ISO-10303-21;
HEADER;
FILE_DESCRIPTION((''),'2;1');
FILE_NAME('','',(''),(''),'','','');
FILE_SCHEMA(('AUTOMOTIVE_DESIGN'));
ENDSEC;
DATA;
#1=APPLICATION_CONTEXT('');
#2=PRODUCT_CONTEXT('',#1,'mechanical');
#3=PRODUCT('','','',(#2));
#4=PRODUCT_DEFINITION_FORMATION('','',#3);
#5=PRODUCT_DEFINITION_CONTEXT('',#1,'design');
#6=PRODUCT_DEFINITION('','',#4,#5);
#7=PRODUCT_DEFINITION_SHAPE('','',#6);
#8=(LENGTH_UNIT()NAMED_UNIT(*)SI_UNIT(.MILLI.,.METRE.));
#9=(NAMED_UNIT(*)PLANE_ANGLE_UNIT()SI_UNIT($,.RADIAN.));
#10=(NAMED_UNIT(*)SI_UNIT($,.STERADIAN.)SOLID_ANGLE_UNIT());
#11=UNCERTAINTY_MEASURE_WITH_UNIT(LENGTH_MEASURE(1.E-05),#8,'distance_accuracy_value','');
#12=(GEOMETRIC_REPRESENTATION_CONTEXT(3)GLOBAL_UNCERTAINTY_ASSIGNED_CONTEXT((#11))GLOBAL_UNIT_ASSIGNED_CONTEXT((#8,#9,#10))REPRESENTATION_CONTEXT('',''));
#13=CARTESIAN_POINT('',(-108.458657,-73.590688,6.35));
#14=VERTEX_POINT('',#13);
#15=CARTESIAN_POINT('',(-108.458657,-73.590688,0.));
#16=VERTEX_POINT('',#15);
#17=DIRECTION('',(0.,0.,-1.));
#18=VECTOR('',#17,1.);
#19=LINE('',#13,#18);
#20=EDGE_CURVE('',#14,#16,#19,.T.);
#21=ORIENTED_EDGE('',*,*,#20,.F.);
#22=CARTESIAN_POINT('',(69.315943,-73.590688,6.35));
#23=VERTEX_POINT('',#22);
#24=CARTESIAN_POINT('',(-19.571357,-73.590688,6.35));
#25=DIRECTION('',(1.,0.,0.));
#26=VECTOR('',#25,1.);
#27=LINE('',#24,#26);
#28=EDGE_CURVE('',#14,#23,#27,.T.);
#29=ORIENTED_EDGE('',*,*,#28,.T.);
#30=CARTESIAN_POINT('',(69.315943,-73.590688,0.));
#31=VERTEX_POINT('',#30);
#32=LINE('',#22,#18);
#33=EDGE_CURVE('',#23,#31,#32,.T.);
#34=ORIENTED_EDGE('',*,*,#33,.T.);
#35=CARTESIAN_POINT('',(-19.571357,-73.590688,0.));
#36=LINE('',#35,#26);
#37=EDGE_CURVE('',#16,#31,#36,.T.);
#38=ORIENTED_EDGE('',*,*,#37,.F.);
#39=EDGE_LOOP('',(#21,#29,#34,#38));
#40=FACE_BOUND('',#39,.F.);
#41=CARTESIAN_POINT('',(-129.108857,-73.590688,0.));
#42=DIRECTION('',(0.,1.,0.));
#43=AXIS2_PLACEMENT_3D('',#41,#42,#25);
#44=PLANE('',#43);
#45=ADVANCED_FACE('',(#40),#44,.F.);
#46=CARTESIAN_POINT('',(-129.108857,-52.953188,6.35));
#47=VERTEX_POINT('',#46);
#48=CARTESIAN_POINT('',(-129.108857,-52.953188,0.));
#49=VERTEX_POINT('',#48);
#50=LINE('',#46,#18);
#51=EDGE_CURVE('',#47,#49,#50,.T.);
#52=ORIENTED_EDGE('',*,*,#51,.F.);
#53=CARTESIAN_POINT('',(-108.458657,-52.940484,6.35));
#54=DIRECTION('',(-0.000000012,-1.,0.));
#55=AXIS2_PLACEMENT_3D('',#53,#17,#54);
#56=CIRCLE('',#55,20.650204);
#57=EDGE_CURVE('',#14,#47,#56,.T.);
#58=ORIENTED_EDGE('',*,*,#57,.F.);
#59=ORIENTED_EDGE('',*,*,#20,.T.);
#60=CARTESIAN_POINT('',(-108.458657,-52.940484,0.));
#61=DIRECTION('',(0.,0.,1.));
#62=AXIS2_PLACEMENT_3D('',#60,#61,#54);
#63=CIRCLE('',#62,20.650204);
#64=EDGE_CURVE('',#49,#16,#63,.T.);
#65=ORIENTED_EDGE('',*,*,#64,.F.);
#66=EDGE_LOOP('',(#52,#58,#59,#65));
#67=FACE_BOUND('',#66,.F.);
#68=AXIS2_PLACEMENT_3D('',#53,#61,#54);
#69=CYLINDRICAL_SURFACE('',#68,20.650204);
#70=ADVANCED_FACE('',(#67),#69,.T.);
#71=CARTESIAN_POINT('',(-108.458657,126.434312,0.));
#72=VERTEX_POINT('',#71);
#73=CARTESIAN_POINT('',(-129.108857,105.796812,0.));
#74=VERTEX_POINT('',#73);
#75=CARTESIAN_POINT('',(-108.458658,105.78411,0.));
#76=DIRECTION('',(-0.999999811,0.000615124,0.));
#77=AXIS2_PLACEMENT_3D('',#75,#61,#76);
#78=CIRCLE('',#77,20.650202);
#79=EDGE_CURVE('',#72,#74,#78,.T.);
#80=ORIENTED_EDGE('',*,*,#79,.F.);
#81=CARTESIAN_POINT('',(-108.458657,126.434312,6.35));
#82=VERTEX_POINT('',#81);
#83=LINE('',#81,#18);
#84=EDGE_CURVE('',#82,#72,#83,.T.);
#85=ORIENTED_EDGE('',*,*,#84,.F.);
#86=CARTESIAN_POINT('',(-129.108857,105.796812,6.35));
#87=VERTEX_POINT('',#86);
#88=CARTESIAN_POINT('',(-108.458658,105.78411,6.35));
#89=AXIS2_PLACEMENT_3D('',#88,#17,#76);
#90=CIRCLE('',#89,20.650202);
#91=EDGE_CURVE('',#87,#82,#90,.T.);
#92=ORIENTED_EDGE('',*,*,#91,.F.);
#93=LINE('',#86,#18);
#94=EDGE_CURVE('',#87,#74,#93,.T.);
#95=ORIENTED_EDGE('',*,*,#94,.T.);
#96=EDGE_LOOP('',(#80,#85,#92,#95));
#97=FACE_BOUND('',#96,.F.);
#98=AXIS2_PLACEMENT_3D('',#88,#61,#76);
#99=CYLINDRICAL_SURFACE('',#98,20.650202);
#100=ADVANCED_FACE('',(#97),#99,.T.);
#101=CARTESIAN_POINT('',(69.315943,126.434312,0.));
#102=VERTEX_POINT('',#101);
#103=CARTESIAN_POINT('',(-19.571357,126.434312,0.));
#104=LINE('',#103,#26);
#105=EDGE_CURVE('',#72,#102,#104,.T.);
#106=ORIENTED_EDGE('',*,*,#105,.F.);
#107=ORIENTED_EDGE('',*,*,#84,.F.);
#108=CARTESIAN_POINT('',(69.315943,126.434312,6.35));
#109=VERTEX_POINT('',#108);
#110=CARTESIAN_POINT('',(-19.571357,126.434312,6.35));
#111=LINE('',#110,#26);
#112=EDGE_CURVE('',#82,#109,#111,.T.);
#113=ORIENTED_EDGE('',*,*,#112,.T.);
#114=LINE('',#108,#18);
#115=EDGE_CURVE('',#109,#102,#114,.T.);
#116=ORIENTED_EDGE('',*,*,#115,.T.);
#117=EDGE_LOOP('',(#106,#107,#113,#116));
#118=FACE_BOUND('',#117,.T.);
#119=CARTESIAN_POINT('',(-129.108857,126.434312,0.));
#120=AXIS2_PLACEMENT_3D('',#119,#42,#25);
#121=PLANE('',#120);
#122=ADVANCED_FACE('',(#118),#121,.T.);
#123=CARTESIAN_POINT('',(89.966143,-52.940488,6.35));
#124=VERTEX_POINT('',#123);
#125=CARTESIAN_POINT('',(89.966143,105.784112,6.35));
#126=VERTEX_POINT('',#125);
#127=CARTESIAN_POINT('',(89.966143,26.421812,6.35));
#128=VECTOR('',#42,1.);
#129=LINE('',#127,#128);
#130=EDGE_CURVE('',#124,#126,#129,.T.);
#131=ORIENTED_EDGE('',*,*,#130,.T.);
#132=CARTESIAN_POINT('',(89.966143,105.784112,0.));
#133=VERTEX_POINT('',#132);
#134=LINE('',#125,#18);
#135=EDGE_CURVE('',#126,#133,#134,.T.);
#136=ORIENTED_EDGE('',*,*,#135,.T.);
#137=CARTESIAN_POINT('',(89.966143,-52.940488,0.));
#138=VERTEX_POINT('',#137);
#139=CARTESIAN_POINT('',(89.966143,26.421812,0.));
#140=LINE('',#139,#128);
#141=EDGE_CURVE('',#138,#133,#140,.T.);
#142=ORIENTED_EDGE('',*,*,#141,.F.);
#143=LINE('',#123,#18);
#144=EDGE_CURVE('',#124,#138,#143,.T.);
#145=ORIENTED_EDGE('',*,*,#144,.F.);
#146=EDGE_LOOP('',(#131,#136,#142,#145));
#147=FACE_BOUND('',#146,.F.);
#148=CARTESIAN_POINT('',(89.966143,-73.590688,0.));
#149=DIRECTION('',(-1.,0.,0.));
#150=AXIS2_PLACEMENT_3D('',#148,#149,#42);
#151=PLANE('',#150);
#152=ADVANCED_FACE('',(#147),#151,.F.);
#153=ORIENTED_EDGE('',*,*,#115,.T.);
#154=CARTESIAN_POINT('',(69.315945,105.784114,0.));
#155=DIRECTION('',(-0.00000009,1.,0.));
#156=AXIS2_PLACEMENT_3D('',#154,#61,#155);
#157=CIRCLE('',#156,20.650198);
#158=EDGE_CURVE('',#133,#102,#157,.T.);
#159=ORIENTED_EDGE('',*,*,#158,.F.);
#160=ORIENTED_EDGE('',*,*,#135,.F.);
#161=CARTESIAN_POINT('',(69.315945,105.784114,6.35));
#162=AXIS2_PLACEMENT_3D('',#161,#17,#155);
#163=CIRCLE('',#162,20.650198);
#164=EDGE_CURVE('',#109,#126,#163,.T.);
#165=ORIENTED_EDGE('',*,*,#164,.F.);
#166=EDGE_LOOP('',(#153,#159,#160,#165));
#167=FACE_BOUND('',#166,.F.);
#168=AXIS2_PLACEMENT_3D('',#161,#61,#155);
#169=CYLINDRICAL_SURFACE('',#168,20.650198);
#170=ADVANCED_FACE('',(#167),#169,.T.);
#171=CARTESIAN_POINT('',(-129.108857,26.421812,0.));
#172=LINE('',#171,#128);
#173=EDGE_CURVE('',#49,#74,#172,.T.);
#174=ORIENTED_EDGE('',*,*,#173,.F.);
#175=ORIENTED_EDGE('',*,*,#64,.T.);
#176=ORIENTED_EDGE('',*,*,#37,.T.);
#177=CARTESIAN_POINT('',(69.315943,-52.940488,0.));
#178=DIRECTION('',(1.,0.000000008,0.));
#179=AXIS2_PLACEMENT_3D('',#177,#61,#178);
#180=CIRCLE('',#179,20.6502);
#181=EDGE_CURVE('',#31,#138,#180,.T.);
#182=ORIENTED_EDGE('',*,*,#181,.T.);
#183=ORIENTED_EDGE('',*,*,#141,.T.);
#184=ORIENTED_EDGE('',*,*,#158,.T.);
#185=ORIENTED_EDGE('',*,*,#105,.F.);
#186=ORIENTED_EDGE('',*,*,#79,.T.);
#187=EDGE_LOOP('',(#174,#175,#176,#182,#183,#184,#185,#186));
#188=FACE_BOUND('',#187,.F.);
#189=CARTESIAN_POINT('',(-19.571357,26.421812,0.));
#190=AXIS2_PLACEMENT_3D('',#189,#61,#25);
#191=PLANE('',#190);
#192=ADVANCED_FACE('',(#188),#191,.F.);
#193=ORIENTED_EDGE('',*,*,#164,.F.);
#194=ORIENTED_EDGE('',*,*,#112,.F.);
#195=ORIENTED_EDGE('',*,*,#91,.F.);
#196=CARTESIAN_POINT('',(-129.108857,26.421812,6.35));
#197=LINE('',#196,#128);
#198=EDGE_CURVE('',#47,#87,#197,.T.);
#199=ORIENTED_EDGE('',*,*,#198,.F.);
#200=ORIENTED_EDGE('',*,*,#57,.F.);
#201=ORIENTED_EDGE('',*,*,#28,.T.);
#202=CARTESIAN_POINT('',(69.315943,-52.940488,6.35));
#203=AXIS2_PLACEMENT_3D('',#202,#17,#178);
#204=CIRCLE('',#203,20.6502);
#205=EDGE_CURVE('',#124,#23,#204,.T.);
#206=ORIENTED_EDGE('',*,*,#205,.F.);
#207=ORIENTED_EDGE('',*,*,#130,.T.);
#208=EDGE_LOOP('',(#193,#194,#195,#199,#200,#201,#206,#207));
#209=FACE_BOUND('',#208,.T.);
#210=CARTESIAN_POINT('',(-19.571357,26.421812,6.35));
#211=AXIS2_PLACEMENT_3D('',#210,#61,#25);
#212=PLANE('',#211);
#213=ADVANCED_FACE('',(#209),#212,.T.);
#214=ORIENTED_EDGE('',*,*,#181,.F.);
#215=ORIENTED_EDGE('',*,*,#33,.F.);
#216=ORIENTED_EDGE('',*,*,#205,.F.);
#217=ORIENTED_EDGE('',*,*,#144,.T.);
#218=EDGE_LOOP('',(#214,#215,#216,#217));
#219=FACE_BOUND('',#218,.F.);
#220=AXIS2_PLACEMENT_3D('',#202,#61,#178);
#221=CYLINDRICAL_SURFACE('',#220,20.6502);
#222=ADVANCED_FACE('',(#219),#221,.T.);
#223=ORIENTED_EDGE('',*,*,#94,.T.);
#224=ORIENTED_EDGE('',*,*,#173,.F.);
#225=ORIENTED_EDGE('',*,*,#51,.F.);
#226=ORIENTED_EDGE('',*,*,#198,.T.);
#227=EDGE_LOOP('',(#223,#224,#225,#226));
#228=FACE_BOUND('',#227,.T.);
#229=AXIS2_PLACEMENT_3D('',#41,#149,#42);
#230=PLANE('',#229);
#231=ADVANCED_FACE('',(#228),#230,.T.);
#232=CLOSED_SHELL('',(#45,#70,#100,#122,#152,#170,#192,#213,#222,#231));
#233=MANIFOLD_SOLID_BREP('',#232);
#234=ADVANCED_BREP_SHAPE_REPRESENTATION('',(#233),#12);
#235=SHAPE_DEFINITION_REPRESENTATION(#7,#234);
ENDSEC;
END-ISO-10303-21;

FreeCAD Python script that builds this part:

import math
import FreeCAD as App
import Part
import Sketcher

V = App.Vector
Q = App.Units.Quantity

doc = App.newDocument("Part")
params = doc.addObject("Spreadsheet::Sheet", "Params")
for row, (alias, value) in enumerate([
    ("sketch1_width", "8.625 in"),
    ("sketch1_height", "7.875 in"),
    ("pad1_length", "0.25 in"),
    ("sketch2_radius", "0.8129999 in"),
    ("sketch2_height", "0.8125 in"),
], start=1):
    params.set(f"A{row}", alias)
    params.set(f"B{row}", "=" + value)
    params.setAlias(f"B{row}", alias)

body = doc.addObject("PartDesign::Body", "Body")

sketch1 = body.newObject("Sketcher::SketchObject", "Sketch")
sketch1.AttachmentSupport = (doc.getObject("XY_Plane"), [""])
sketch1.MapMode = "FlatFace"
sketch1.addGeometry(Part.LineSegment(V(-129.108857, 126.434312, 0), V(-129.108857, -73.590688, 0)), False)
sketch1.addGeometry(Part.LineSegment(V(-129.108857, -73.590688, 0), V(89.966143, -73.590688, 0)), False)
sketch1.addGeometry(Part.LineSegment(V(89.966143, -73.590688, 0), V(89.966143, 126.434312, 0)), False)
sketch1.addGeometry(Part.LineSegment(V(89.966143, 126.434312, 0), V(-129.108857, 126.434312, 0)), False)
sketch1.addConstraint(Sketcher.Constraint("Coincident", 0, 2, 1, 1))
sketch1.addConstraint(Sketcher.Constraint("Coincident", 1, 2, 2, 1))
sketch1.addConstraint(Sketcher.Constraint("Coincident", 2, 2, 3, 1))
sketch1.addConstraint(Sketcher.Constraint("Coincident", 3, 2, 0, 1))
sketch1.addConstraint(Sketcher.Constraint("Vertical", 0))
sketch1.addConstraint(Sketcher.Constraint("Horizontal", 1))
sketch1.addConstraint(Sketcher.Constraint("Vertical", 2))
sketch1.addConstraint(Sketcher.Constraint("Horizontal", 3))
sketch1.addConstraint(Sketcher.Constraint("DistanceX", 1, 1, 1, 2, Q("8.625 in")))
sketch1.addConstraint(Sketcher.Constraint("DistanceY", 0, 2, 0, 1, Q("7.875 in")))
sketch1.addConstraint(Sketcher.Constraint("DistanceY", 0, 2, -1, 1, 73.590688))
sketch1.addConstraint(Sketcher.Constraint("DistanceX", 0, 2, -1, 1, 129.108857))
sketch1.setExpression("Constraints[8]", "Params.sketch1_width")
sketch1.setExpression("Constraints[9]", "Params.sketch1_height")
pad1 = body.newObject("PartDesign::Pad", "Pad")
pad1.Profile = sketch1
pad1.setExpression("Length", "Params.pad1_length")

sketch2 = body.newObject("Sketcher::SketchObject", "Sketch001")
sketch2.AttachmentSupport = (doc.getObject("XY_Plane"), [""])
sketch2.MapMode = "FlatFace"
sketch2.AttachmentOffset = App.Placement(V(0, 0, 0.25 * 25.4), App.Rotation())
sketch2.addGeometry(Part.LineSegment(V(89.966143, 126.434312, 0), V(69.315943, 126.434312, 0)), False)
sketch2.addGeometry(Part.ArcOfCircle(Part.Circle(V(69.315945, 105.784114, 0), V(0, 0, 1), 20.650198), math.radians(-0.000005), math.radians(90.000005)), False)
sketch2.addGeometry(Part.LineSegment(V(89.966143, 105.784112, 0), V(89.966143, 126.434312, 0)), False)
sketch2.addGeometry(Part.LineSegment(V(-129.108857, 126.434312, 0), V(-129.108857, 105.796812, 0)), False)
sketch2.addGeometry(Part.ArcOfCircle(Part.Circle(V(-108.458658, 105.78411, 0), V(0, 0, 1), 20.650202), math.radians(89.999996), math.radians(179.964756)), False)
sketch2.addGeometry(Part.LineSegment(V(-108.458657, 126.434312, 0), V(-129.108857, 126.434312, 0)), False)
sketch2.addGeometry(Part.ArcOfCircle(Part.Circle(V(-108.458657, -52.940484, 0), V(0, 0, 1), 20.650204), math.radians(-179.964751), math.radians(-90.000001)), False)
sketch2.addGeometry(Part.LineSegment(V(-129.108857, -52.953188, 0), V(-129.108857, -73.590688, 0)), False)
sketch2.addGeometry(Part.LineSegment(V(-129.108857, -73.590688, 0), V(-108.458657, -73.590688, 0)), False)
sketch2.addGeometry(Part.ArcOfCircle(Part.Circle(V(69.315943, -52.940488, 0), V(0, 0, 1), 20.6502), math.radians(-90), math.radians(0)), False)
sketch2.addGeometry(Part.LineSegment(V(69.315943, -73.590688, 0), V(89.966143, -73.590688, 0)), False)
sketch2.addGeometry(Part.LineSegment(V(89.966143, -73.590688, 0), V(89.966143, -52.940488, 0)), False)
sketch2.addConstraint(Sketcher.Constraint("Tangent", 0, 2, 1, 2))
sketch2.addConstraint(Sketcher.Constraint("Tangent", 1, 1, 2, 1))
sketch2.addConstraint(Sketcher.Constraint("Coincident", 2, 2, 0, 1))
sketch2.addConstraint(Sketcher.Constraint("Coincident", 3, 2, 4, 2))
sketch2.addConstraint(Sketcher.Constraint("Tangent", 4, 1, 5, 1))
sketch2.addConstraint(Sketcher.Constraint("Coincident", 5, 2, 3, 1))
sketch2.addConstraint(Sketcher.Constraint("Coincident", 6, 1, 7, 1))
sketch2.addConstraint(Sketcher.Constraint("Coincident", 7, 2, 8, 1))
sketch2.addConstraint(Sketcher.Constraint("Tangent", 8, 2, 6, 2))
sketch2.addConstraint(Sketcher.Constraint("Tangent", 9, 1, 10, 1))
sketch2.addConstraint(Sketcher.Constraint("Coincident", 10, 2, 11, 1))
sketch2.addConstraint(Sketcher.Constraint("Tangent", 11, 2, 9, 2))
sketch2.addConstraint(Sketcher.Constraint("Horizontal", 0))
sketch2.addConstraint(Sketcher.Constraint("Vertical", 2))
sketch2.addConstraint(Sketcher.Constraint("Vertical", 3))
sketch2.addConstraint(Sketcher.Constraint("Horizontal", 5))
sketch2.addConstraint(Sketcher.Constraint("Vertical", 7))
sketch2.addConstraint(Sketcher.Constraint("Horizontal", 8))
sketch2.addConstraint(Sketcher.Constraint("Horizontal", 10))
sketch2.addConstraint(Sketcher.Constraint("Vertical", 11))
sketch2.addConstraint(Sketcher.Constraint("Equal", 4, 6))
sketch2.addConstraint(Sketcher.Constraint("Equal", 1, 9))
sketch2.addConstraint(Sketcher.Constraint("Horizontal", 2, 2, 4, 1))
sketch2.addConstraint(Sketcher.Constraint("Horizontal", 8, 2, 9, 1))
sketch2.addConstraint(Sketcher.Constraint("Vertical", 4, 3, 6, 3))
sketch2.addConstraint(Sketcher.Constraint("Vertical", 1, 3, 9, 3))
sketch2.addConstraint(Sketcher.Constraint("Equal", 0, 5))
sketch2.addConstraint(Sketcher.Constraint("Equal", 3, 7))
sketch2.addConstraint(Sketcher.Constraint("Radius", 1, Q("0.8129999 in")))
sketch2.addConstraint(Sketcher.Constraint("DistanceY", 3, 2, 3, 1, Q("0.8125 in")))
sketch2.addConstraint(Sketcher.Constraint("DistanceY", 6, 1, 3, 2, Q("6.25 in")))
sketch2.addConstraint(Sketcher.Constraint("DistanceX", 4, 3, 1, 3, Q("6.9990001 in")))
sketch2.addConstraint(Sketcher.Constraint("DistanceX", 4, 3, -1, 1, 108.458658))
sketch2.addConstraint(Sketcher.Constraint("DistanceY", -1, 1, 4, 3, 105.78411))
sketch2.setExpression("Constraints[28]", "Params.sketch2_radius")
sketch2.setExpression("Constraints[29]", "Params.sketch2_height")
pocket1 = body.newObject("PartDesign::Pocket", "Pocket")
pocket1.Profile = sketch2
pocket1.Type = "ThroughAll"

doc.recompute()
